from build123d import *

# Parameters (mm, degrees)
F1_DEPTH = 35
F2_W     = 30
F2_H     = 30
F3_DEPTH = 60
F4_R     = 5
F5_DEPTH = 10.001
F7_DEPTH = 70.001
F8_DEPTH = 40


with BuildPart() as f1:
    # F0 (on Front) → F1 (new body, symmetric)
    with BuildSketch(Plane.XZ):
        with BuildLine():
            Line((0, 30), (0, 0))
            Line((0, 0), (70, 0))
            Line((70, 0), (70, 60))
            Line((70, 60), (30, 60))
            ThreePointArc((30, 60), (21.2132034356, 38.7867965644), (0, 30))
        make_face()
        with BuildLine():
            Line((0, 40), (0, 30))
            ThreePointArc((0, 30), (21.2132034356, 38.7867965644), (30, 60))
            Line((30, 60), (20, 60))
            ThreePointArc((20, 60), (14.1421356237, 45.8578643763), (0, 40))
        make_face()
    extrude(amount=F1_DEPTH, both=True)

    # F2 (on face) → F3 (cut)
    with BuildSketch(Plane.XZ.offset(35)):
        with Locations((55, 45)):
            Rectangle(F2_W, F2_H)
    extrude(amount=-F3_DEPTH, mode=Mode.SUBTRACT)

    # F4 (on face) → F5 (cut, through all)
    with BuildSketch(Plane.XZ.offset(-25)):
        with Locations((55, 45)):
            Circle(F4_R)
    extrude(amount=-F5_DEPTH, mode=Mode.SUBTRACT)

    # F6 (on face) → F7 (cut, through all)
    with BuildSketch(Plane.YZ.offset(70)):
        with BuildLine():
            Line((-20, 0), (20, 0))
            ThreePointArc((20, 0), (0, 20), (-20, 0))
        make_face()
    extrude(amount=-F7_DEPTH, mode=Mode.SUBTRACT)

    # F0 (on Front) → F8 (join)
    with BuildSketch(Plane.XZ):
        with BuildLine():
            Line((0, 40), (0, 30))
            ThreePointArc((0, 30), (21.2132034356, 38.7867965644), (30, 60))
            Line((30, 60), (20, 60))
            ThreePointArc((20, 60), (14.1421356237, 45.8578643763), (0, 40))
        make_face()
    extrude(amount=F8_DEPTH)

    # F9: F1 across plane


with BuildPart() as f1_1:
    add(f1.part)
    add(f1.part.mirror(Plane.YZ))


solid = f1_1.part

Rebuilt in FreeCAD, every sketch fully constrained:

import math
import FreeCAD as App
import Part
import Sketcher

V = App.Vector

doc = App.newDocument("Part")
body = doc.addObject("PartDesign::Body", "Body")

# Sketch on XZ plane
sketch1 = body.newObject("Sketcher::SketchObject", "Sketch")
sketch1.AttachmentSupport = (doc.getObject("XZ_Plane"), [""])
sketch1.MapMode = "FlatFace"
sketch1.addGeometry([
    Part.LineSegment(V(0, 0, 0), V(70, 0, 0)),  # 0
    Part.LineSegment(V(70, 0, 0), V(70, 60, 0)),  # 1
    Part.LineSegment(V(70, 60, 0), V(20, 60, 0)),  # 2
    Part.ArcOfCircle(Part.Circle(V(0, 60, 0), V(0, 0, 1), 20), math.radians(-90), math.radians(0)),  # 3
    Part.LineSegment(V(0, 40, 0), V(0, 0, 0)),  # 4
], False)
sketch1.addConstraint([
    Sketcher.Constraint("Coincident", 0, 2, 1, 1),
    Sketcher.Constraint("Coincident", 1, 2, 2, 1),
    Sketcher.Constraint("Coincident", 2, 2, 3, 2),
    Sketcher.Constraint("Coincident", 3, 1, 4, 1),
    Sketcher.Constraint("Coincident", 4, 2, 0, 1),
    Sketcher.Constraint("Horizontal", 0),
    Sketcher.Constraint("Vertical", 1),
    Sketcher.Constraint("Horizontal", 2),
    Sketcher.Constraint("Vertical", 4),
    Sketcher.Constraint("Coincident", 4, 2, -1, 1),
    Sketcher.Constraint("PointOnObject", 3, 3, -2),
    Sketcher.Constraint("Horizontal", 3, 3, 1, 2),
    Sketcher.Constraint("Radius", 3, 20.0),
    Sketcher.Constraint("DistanceX", 0, 1, 0, 2, 70.0),
    Sketcher.Constraint("DistanceY", 1, 1, 1, 2, 60.0),
])
pad1 = body.newObject("PartDesign::Pad", "Pad")
pad1.Profile = sketch1
pad1.Length = 70
pad1.Midplane = True

# Sketch on XZ plane
sketch2 = body.newObject("Sketcher::SketchObject", "Sketch001")
sketch2.AttachmentSupport = (doc.getObject("XZ_Plane"), [""])
sketch2.MapMode = "FlatFace"
sketch2.AttachmentOffset = App.Placement(V(0, 0, 35), App.Rotation())
sketch2.addGeometry([
    Part.LineSegment(V(40, 60, 0), V(40, 30, 0)),
    Part.LineSegment(V(40, 30, 0), V(70, 30, 0)),
    Part.LineSegment(V(70, 30, 0), V(70, 60, 0)),
    Part.LineSegment(V(70, 60, 0), V(40, 60, 0)),
], False)
sketch2.addConstraint([
    Sketcher.Constraint("Coincident", 0, 2, 1, 1),
    Sketcher.Constraint("Coincident", 1, 2, 2, 1),
    Sketcher.Constraint("Coincident", 2, 2, 3, 1),
    Sketcher.Constraint("Coincident", 3, 2, 0, 1),
    Sketcher.Constraint("Vertical", 0),
    Sketcher.Constraint("Horizontal", 1),
    Sketcher.Constraint("Vertical", 2),
    Sketcher.Constraint("Horizontal", 3),
    Sketcher.Constraint("Equal", 3, 0),
    Sketcher.Constraint("DistanceX", 1, 1, 1, 2, 30.0),
    Sketcher.Constraint("DistanceX", -1, 1, 0, 2, 40.0),
    Sketcher.Constraint("DistanceY", -1, 1, 0, 2, 30.0),
])
pocket1 = body.newObject("PartDesign::Pocket", "Pocket")
pocket1.Profile = sketch2
pocket1.Length = 60

# Sketch on XZ plane
sketch3 = body.newObject("Sketcher::SketchObject", "Sketch002")
sketch3.AttachmentSupport = (doc.getObject("XZ_Plane"), [""])
sketch3.MapMode = "FlatFace"
sketch3.AttachmentOffset = App.Placement(V(0, 0, -25), App.Rotation())
sketch3.addGeometry(Part.Circle(V(55, 45, 0), V(0, 0, 1), 5), False)
sketch3.addConstraint([
    Sketcher.Constraint("Diameter", 0, 10.0),
    Sketcher.Constraint("DistanceX", -1, 1, 0, 3, 55.0),
    Sketcher.Constraint("DistanceY", -1, 1, 0, 3, 45.0),
])
pocket2 = body.newObject("PartDesign::Pocket", "Pocket001")
pocket2.Profile = sketch3
pocket2.Type = "ThroughAll"

# Sketch on YZ plane
sketch4 = body.newObject("Sketcher::SketchObject", "Sketch003")
sketch4.AttachmentSupport = (doc.getObject("YZ_Plane"), [""])
sketch4.MapMode = "FlatFace"
sketch4.AttachmentOffset = App.Placement(V(0, 0, 70), App.Rotation())
sketch4.addGeometry([
    Part.LineSegment(V(-20, 0, 0), V(20, 0, 0)),
    Part.ArcOfCircle(Part.Circle(V(0, 0, 0), V(0, 0, 1), 20), math.radians(0), math.radians(180)),
], False)
sketch4.addConstraint([
    Sketcher.Constraint("Coincident", 0, 1, 1, 2),
    Sketcher.Constraint("Coincident", 1, 1, 0, 2),
    Sketcher.Constraint("Horizontal", 0),
    Sketcher.Constraint("Coincident", 1, 3, -1, 1),
    Sketcher.Constraint("PointOnObject", 0, 1, -1),
    Sketcher.Constraint("Radius", 1, 20.0),
])
pocket3 = body.newObject("PartDesign::Pocket", "Pocket002")
pocket3.Profile = sketch4
pocket3.Type = "ThroughAll"

# Sketch on XZ plane
sketch5 = body.newObject("Sketcher::SketchObject", "Sketch004")
sketch5.AttachmentSupport = (doc.getObject("XZ_Plane"), [""])
sketch5.MapMode = "FlatFace"
sketch5.addGeometry([
    Part.LineSegment(V(0, 40, 0), V(0, 30, 0)),
    Part.ArcOfCircle(Part.Circle(V(0, 60, 0), V(0, 0, 1), 30), math.radians(-90), math.radians(0)),
    Part.LineSegment(V(30, 60, 0), V(20, 60, 0)),
    Part.ArcOfCircle(Part.Circle(V(0, 60, 0), V(0, 0, 1), 20), math.radians(-90), math.radians(0)),
], False)
sketch5.addConstraint([
    Sketcher.Constraint("Coincident", 0, 2, 1, 1),
    Sketcher.Constraint("Coincident", 1, 2, 2, 1),
    Sketcher.Constraint("Coincident", 2, 2, 3, 2),
    Sketcher.Constraint("Coincident", 3, 1, 0, 1),
    Sketcher.Constraint("Vertical", 0),
    Sketcher.Constraint("Horizontal", 2),
    Sketcher.Constraint("Coincident", 3, 3, 1, 3),
    Sketcher.Constraint("PointOnObject", 1, 3, -2),
    Sketcher.Constraint("PointOnObject", 0, 2, -2),
    Sketcher.Constraint("Horizontal", 3, 3, 1, 2),
    Sketcher.Constraint("Radius", 1, 30.0),
    Sketcher.Constraint("Radius", 3, 20.0),
    Sketcher.Constraint("DistanceY", -1, 1, 1, 3, 60.0),
])
pad2 = body.newObject("PartDesign::Pad", "Pad001")
pad2.Profile = sketch5
pad2.Length = 40
body2 = doc.addObject("PartDesign::Body", "Body001")
doc.recompute()

body2.BaseFeature = body
doc.recompute()

mirroring = doc.addObject("Part::Mirroring", "Mirroring")
mirroring.Source = body
mirroring.Base = V(0, 0, 0)
mirroring.Normal = V(1, 0, 0)
body3 = doc.addObject("PartDesign::Body", "Body002")
body3.BaseFeature = mirroring
boolean = body2.newObject("PartDesign::Boolean", "Boolean")
boolean.Type = "Fuse"
boolean.addObjects([body3])
doc.recompute()
mirroring.Visibility = False

doc.recompute()
